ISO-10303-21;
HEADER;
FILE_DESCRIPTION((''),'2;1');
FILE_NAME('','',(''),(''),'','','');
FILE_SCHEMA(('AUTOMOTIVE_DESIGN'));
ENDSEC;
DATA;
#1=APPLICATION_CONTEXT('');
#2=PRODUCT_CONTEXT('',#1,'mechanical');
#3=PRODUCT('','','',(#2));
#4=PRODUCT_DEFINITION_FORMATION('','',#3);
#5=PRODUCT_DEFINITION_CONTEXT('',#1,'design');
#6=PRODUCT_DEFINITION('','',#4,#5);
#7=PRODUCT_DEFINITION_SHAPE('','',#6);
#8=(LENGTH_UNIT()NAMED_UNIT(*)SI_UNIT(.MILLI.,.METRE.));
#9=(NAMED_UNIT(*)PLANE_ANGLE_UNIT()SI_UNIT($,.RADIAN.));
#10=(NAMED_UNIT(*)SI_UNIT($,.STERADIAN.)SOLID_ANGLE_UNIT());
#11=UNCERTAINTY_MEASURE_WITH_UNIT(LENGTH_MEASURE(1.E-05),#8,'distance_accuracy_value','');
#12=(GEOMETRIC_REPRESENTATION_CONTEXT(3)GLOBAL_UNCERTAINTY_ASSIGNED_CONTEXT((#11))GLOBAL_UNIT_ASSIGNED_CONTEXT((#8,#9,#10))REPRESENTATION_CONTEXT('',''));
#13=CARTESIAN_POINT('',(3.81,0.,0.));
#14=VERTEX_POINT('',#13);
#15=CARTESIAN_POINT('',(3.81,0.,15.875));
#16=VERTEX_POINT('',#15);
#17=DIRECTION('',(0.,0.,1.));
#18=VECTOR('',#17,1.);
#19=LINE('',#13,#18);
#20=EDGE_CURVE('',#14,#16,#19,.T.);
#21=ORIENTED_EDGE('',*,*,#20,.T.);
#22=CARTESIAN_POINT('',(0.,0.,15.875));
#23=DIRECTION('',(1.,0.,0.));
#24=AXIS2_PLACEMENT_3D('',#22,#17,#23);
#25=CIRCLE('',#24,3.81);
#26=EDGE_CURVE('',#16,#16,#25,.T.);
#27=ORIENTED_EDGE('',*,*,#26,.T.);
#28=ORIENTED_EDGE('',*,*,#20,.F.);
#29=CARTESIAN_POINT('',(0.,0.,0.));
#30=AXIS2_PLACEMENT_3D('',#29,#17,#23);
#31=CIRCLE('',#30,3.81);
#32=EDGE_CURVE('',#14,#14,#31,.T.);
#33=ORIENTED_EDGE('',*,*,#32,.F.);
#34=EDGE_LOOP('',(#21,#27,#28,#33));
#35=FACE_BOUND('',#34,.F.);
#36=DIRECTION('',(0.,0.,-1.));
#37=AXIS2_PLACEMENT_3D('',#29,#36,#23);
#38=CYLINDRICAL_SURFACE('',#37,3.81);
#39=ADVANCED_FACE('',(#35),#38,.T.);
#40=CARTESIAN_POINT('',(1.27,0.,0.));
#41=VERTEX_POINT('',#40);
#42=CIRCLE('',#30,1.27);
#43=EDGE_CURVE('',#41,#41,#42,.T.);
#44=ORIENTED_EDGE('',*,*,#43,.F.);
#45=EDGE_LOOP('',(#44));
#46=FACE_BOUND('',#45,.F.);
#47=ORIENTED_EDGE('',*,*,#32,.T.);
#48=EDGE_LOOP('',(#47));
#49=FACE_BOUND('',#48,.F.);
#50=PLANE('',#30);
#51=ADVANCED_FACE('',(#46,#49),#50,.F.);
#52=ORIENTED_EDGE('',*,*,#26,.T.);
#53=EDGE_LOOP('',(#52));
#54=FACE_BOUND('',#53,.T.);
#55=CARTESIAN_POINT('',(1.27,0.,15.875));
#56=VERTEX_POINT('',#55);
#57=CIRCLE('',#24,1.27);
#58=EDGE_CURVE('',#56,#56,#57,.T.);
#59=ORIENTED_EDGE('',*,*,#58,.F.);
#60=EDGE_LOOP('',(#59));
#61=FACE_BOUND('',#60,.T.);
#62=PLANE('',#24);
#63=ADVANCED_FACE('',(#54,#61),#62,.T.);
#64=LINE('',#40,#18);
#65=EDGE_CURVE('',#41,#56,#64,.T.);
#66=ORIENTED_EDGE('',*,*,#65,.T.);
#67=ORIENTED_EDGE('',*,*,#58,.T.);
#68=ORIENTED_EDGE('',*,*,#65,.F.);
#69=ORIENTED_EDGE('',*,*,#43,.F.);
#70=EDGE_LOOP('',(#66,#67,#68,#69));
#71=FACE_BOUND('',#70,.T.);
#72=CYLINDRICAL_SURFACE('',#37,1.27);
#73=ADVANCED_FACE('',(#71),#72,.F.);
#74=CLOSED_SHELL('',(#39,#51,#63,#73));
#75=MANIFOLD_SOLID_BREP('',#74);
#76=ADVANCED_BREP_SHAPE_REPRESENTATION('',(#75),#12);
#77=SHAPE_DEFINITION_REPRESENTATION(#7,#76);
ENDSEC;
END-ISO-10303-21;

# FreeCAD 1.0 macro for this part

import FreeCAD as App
import Part
import Sketcher
Q = App.Units.Quantity

doc = App.newDocument("Part")
body = doc.addObject("PartDesign::Body", "Body")

sketch1 = doc.addObject("Sketcher::SketchObject", "Sketch")
body.addObject(sketch1)
sketch1.AttachmentSupport = (doc.XY_Plane, [""])
sketch1.MapMode = "FlatFace"
sketch1.addGeometry(Part.Circle(App.Vector(0, 0, 0), App.Vector(0, 0, 1), 3.8), False)
sketch1.addGeometry(Part.Circle(App.Vector(0, 0, 0), App.Vector(0, 0, 1), 1.3), False)
sketch1.addConstraint(Sketcher.Constraint("Coincident", 0, 3, -1, 1))
sketch1.addConstraint(Sketcher.Constraint("Coincident", 1, 3, -1, 1))
sketch1.addConstraint(Sketcher.Constraint("Diameter", 0, Q("0.3 in")))
sketch1.addConstraint(Sketcher.Constraint("Diameter", 1, Q("0.1 in")))
pad1 = doc.addObject("PartDesign::Pad", "Pad")
body.addObject(pad1)
pad1.Profile = sketch1
pad1.Length = Q("0.625 in")

doc.recompute()
